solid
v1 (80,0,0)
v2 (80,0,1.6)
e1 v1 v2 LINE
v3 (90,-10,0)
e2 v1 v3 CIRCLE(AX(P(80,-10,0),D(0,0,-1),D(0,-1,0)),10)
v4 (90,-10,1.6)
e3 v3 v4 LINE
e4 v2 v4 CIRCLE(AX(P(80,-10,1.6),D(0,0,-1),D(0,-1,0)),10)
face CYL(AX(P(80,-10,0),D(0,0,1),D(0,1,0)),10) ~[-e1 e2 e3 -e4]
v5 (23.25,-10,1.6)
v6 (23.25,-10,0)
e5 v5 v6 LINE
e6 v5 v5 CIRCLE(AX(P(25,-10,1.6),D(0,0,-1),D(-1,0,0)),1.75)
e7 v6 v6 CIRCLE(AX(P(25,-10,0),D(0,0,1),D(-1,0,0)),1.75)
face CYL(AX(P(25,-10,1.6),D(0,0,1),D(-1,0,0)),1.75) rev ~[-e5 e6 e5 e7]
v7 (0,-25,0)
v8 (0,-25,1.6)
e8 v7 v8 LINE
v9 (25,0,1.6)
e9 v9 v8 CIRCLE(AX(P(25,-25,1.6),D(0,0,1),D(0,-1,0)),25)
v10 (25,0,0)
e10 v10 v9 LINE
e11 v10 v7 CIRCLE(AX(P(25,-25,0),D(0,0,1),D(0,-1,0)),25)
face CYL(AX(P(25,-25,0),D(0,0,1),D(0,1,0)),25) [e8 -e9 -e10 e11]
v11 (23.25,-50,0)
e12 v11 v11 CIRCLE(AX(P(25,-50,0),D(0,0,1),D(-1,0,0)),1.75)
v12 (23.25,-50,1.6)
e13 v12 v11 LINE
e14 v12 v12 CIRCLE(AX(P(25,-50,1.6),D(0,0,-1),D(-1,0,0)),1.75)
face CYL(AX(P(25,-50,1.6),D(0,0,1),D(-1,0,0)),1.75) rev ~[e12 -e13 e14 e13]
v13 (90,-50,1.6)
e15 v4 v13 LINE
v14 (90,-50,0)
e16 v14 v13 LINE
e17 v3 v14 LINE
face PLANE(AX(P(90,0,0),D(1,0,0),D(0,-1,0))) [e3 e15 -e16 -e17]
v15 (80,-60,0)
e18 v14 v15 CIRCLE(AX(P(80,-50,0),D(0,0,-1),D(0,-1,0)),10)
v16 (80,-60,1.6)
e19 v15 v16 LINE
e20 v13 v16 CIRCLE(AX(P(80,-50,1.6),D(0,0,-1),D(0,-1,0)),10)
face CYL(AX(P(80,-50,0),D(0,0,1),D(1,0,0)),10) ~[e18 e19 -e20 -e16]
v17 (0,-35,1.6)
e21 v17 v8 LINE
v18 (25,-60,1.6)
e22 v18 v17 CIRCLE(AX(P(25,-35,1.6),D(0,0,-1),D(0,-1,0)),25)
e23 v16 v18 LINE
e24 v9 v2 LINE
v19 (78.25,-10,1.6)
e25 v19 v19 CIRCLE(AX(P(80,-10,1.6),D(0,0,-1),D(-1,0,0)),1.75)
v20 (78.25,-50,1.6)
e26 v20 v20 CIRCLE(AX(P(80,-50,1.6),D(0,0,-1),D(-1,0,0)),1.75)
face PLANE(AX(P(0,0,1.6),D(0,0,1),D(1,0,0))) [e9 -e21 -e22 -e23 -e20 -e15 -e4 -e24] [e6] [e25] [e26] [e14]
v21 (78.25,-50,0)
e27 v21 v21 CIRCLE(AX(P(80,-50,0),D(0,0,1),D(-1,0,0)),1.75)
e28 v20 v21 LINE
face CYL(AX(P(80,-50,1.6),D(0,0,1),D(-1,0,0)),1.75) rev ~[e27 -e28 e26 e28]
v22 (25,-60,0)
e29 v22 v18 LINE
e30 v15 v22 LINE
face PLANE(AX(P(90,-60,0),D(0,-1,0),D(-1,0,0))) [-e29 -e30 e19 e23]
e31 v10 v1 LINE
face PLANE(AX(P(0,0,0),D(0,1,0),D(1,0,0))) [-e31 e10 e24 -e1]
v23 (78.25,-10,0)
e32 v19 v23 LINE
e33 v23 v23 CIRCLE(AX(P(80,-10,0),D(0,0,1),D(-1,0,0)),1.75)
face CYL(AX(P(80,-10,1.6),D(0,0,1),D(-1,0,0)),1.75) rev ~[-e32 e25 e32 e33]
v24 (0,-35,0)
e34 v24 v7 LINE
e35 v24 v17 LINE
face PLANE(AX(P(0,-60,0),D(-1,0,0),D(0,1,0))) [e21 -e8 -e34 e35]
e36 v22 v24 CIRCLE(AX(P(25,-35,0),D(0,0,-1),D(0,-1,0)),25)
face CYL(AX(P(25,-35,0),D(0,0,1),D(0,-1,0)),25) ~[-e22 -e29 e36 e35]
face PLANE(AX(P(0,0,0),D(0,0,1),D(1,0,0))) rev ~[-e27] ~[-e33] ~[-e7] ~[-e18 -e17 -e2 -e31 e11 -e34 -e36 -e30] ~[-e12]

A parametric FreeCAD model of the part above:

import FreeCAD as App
import Part
import Sketcher

V = App.Vector
Q = App.Units.Quantity


def edges_at(feature, points):
    """Names of the edges that pass closest to the given points."""
    edges = feature.Shape.Edges
    near = lambda p: min(range(len(edges)), key=lambda i: edges[i].distToShape(Part.Vertex(*p))[0])
    return sorted({f"Edge{near(p) + 1}" for p in points})


def add_polygon(sketch, points):
    """Adds a closed chain of lines whose ends are joined by coincident constraints."""
    first, n = sketch.GeometryCount, len(points)
    for a, b in zip(points, points[1:] + points[:1]):
        sketch.addGeometry(Part.LineSegment(App.Vector(*a, 0), App.Vector(*b, 0)), False)
    for i in range(n):
        sketch.addConstraint(Sketcher.Constraint("Coincident", first + i, 2, first + (i + 1) % n, 1))

doc = App.newDocument("Part")
body = doc.addObject("PartDesign::Body", "Body")

sketch1 = body.newObject("Sketcher::SketchObject", "Sketch")
sketch1.AttachmentSupport = (doc.getObject("XY_Plane"), [""])
sketch1.MapMode = "FlatFace"
add_polygon(sketch1, [(90, 0), (0, 0), (0, -60), (90, -60)])
sketch1.addConstraint([
    Sketcher.Constraint("Horizontal", 0),
    Sketcher.Constraint("Vertical", 1),
    Sketcher.Constraint("Horizontal", 2),
    Sketcher.Constraint("Vertical", 3),
    Sketcher.Constraint("Coincident", 0, 2, -1, 1),
    Sketcher.Constraint("DistanceX", 0, 2, 0, 1, Q("90 mm")),
    Sketcher.Constraint("DistanceY", 1, 2, 1, 1, Q("60 mm")),
])
pad1 = body.newObject("PartDesign::Pad", "Pad")
pad1.Profile = sketch1
pad1.Length = 1.6
doc.recompute()

fillet = body.newObject("PartDesign::Fillet", "Fillet")
fillet.Base = (pad1, edges_at(pad1, [(0, -60, 0.8), (0, 0, 0.8)]))
fillet.Radius = 25
doc.recompute()

fillet2 = body.newObject("PartDesign::Fillet", "Fillet001")
fillet2.Base = (fillet, edges_at(fillet, [(90, -60, 0.8), (90, 0, 0.8)]))
fillet2.Radius = 10

sketch2 = body.newObject("Sketcher::SketchObject", "Sketch001")
sketch2.AttachmentSupport = (doc.getObject("XY_Plane"), [""])
sketch2.MapMode = "FlatFace"
sketch2.AttachmentOffset = App.Placement(V(0, 0, 1.6), App.Rotation())
sketch2.addGeometry([
    Part.Circle(V(80, -10, 0), V(0, 0, 1), 1.8),
    Part.Circle(V(25, -10, 0), V(0, 0, 1), 1.8),
    Part.Circle(V(80, -50, 0), V(0, 0, 1), 1.8),
    Part.Circle(V(25, -50, 0), V(0, 0, 1), 1.8),
], False)
sketch2.addConstraint([
    Sketcher.Constraint("Equal", 0, 1),
    Sketcher.Constraint("Equal", 1, 2),
    Sketcher.Constraint("Equal", 2, 3),
    Sketcher.Constraint("Horizontal", 0, 3, 1, 3),
    Sketcher.Constraint("Horizontal", 2, 3, 3, 3),
    Sketcher.Constraint("Vertical", 0, 3, 2, 3),
    Sketcher.Constraint("Vertical", 1, 3, 3, 3),
    Sketcher.Constraint("Diameter", 0, Q("3.5 mm")),
    Sketcher.Constraint("DistanceX", -1, 1, 0, 3, Q("80 mm")),
    Sketcher.Constraint("DistanceY", 0, 3, -1, 1, Q("10 mm")),
    Sketcher.Constraint("DistanceX", -1, 1, 1, 3, Q("25 mm")),
    Sketcher.Constraint("DistanceY", 2, 3, -1, 1, Q("50 mm")),
])
pocket1 = body.newObject("PartDesign::Pocket", "Pocket")
pocket1.Profile = sketch2
pocket1.Length = 2

doc.recompute()
